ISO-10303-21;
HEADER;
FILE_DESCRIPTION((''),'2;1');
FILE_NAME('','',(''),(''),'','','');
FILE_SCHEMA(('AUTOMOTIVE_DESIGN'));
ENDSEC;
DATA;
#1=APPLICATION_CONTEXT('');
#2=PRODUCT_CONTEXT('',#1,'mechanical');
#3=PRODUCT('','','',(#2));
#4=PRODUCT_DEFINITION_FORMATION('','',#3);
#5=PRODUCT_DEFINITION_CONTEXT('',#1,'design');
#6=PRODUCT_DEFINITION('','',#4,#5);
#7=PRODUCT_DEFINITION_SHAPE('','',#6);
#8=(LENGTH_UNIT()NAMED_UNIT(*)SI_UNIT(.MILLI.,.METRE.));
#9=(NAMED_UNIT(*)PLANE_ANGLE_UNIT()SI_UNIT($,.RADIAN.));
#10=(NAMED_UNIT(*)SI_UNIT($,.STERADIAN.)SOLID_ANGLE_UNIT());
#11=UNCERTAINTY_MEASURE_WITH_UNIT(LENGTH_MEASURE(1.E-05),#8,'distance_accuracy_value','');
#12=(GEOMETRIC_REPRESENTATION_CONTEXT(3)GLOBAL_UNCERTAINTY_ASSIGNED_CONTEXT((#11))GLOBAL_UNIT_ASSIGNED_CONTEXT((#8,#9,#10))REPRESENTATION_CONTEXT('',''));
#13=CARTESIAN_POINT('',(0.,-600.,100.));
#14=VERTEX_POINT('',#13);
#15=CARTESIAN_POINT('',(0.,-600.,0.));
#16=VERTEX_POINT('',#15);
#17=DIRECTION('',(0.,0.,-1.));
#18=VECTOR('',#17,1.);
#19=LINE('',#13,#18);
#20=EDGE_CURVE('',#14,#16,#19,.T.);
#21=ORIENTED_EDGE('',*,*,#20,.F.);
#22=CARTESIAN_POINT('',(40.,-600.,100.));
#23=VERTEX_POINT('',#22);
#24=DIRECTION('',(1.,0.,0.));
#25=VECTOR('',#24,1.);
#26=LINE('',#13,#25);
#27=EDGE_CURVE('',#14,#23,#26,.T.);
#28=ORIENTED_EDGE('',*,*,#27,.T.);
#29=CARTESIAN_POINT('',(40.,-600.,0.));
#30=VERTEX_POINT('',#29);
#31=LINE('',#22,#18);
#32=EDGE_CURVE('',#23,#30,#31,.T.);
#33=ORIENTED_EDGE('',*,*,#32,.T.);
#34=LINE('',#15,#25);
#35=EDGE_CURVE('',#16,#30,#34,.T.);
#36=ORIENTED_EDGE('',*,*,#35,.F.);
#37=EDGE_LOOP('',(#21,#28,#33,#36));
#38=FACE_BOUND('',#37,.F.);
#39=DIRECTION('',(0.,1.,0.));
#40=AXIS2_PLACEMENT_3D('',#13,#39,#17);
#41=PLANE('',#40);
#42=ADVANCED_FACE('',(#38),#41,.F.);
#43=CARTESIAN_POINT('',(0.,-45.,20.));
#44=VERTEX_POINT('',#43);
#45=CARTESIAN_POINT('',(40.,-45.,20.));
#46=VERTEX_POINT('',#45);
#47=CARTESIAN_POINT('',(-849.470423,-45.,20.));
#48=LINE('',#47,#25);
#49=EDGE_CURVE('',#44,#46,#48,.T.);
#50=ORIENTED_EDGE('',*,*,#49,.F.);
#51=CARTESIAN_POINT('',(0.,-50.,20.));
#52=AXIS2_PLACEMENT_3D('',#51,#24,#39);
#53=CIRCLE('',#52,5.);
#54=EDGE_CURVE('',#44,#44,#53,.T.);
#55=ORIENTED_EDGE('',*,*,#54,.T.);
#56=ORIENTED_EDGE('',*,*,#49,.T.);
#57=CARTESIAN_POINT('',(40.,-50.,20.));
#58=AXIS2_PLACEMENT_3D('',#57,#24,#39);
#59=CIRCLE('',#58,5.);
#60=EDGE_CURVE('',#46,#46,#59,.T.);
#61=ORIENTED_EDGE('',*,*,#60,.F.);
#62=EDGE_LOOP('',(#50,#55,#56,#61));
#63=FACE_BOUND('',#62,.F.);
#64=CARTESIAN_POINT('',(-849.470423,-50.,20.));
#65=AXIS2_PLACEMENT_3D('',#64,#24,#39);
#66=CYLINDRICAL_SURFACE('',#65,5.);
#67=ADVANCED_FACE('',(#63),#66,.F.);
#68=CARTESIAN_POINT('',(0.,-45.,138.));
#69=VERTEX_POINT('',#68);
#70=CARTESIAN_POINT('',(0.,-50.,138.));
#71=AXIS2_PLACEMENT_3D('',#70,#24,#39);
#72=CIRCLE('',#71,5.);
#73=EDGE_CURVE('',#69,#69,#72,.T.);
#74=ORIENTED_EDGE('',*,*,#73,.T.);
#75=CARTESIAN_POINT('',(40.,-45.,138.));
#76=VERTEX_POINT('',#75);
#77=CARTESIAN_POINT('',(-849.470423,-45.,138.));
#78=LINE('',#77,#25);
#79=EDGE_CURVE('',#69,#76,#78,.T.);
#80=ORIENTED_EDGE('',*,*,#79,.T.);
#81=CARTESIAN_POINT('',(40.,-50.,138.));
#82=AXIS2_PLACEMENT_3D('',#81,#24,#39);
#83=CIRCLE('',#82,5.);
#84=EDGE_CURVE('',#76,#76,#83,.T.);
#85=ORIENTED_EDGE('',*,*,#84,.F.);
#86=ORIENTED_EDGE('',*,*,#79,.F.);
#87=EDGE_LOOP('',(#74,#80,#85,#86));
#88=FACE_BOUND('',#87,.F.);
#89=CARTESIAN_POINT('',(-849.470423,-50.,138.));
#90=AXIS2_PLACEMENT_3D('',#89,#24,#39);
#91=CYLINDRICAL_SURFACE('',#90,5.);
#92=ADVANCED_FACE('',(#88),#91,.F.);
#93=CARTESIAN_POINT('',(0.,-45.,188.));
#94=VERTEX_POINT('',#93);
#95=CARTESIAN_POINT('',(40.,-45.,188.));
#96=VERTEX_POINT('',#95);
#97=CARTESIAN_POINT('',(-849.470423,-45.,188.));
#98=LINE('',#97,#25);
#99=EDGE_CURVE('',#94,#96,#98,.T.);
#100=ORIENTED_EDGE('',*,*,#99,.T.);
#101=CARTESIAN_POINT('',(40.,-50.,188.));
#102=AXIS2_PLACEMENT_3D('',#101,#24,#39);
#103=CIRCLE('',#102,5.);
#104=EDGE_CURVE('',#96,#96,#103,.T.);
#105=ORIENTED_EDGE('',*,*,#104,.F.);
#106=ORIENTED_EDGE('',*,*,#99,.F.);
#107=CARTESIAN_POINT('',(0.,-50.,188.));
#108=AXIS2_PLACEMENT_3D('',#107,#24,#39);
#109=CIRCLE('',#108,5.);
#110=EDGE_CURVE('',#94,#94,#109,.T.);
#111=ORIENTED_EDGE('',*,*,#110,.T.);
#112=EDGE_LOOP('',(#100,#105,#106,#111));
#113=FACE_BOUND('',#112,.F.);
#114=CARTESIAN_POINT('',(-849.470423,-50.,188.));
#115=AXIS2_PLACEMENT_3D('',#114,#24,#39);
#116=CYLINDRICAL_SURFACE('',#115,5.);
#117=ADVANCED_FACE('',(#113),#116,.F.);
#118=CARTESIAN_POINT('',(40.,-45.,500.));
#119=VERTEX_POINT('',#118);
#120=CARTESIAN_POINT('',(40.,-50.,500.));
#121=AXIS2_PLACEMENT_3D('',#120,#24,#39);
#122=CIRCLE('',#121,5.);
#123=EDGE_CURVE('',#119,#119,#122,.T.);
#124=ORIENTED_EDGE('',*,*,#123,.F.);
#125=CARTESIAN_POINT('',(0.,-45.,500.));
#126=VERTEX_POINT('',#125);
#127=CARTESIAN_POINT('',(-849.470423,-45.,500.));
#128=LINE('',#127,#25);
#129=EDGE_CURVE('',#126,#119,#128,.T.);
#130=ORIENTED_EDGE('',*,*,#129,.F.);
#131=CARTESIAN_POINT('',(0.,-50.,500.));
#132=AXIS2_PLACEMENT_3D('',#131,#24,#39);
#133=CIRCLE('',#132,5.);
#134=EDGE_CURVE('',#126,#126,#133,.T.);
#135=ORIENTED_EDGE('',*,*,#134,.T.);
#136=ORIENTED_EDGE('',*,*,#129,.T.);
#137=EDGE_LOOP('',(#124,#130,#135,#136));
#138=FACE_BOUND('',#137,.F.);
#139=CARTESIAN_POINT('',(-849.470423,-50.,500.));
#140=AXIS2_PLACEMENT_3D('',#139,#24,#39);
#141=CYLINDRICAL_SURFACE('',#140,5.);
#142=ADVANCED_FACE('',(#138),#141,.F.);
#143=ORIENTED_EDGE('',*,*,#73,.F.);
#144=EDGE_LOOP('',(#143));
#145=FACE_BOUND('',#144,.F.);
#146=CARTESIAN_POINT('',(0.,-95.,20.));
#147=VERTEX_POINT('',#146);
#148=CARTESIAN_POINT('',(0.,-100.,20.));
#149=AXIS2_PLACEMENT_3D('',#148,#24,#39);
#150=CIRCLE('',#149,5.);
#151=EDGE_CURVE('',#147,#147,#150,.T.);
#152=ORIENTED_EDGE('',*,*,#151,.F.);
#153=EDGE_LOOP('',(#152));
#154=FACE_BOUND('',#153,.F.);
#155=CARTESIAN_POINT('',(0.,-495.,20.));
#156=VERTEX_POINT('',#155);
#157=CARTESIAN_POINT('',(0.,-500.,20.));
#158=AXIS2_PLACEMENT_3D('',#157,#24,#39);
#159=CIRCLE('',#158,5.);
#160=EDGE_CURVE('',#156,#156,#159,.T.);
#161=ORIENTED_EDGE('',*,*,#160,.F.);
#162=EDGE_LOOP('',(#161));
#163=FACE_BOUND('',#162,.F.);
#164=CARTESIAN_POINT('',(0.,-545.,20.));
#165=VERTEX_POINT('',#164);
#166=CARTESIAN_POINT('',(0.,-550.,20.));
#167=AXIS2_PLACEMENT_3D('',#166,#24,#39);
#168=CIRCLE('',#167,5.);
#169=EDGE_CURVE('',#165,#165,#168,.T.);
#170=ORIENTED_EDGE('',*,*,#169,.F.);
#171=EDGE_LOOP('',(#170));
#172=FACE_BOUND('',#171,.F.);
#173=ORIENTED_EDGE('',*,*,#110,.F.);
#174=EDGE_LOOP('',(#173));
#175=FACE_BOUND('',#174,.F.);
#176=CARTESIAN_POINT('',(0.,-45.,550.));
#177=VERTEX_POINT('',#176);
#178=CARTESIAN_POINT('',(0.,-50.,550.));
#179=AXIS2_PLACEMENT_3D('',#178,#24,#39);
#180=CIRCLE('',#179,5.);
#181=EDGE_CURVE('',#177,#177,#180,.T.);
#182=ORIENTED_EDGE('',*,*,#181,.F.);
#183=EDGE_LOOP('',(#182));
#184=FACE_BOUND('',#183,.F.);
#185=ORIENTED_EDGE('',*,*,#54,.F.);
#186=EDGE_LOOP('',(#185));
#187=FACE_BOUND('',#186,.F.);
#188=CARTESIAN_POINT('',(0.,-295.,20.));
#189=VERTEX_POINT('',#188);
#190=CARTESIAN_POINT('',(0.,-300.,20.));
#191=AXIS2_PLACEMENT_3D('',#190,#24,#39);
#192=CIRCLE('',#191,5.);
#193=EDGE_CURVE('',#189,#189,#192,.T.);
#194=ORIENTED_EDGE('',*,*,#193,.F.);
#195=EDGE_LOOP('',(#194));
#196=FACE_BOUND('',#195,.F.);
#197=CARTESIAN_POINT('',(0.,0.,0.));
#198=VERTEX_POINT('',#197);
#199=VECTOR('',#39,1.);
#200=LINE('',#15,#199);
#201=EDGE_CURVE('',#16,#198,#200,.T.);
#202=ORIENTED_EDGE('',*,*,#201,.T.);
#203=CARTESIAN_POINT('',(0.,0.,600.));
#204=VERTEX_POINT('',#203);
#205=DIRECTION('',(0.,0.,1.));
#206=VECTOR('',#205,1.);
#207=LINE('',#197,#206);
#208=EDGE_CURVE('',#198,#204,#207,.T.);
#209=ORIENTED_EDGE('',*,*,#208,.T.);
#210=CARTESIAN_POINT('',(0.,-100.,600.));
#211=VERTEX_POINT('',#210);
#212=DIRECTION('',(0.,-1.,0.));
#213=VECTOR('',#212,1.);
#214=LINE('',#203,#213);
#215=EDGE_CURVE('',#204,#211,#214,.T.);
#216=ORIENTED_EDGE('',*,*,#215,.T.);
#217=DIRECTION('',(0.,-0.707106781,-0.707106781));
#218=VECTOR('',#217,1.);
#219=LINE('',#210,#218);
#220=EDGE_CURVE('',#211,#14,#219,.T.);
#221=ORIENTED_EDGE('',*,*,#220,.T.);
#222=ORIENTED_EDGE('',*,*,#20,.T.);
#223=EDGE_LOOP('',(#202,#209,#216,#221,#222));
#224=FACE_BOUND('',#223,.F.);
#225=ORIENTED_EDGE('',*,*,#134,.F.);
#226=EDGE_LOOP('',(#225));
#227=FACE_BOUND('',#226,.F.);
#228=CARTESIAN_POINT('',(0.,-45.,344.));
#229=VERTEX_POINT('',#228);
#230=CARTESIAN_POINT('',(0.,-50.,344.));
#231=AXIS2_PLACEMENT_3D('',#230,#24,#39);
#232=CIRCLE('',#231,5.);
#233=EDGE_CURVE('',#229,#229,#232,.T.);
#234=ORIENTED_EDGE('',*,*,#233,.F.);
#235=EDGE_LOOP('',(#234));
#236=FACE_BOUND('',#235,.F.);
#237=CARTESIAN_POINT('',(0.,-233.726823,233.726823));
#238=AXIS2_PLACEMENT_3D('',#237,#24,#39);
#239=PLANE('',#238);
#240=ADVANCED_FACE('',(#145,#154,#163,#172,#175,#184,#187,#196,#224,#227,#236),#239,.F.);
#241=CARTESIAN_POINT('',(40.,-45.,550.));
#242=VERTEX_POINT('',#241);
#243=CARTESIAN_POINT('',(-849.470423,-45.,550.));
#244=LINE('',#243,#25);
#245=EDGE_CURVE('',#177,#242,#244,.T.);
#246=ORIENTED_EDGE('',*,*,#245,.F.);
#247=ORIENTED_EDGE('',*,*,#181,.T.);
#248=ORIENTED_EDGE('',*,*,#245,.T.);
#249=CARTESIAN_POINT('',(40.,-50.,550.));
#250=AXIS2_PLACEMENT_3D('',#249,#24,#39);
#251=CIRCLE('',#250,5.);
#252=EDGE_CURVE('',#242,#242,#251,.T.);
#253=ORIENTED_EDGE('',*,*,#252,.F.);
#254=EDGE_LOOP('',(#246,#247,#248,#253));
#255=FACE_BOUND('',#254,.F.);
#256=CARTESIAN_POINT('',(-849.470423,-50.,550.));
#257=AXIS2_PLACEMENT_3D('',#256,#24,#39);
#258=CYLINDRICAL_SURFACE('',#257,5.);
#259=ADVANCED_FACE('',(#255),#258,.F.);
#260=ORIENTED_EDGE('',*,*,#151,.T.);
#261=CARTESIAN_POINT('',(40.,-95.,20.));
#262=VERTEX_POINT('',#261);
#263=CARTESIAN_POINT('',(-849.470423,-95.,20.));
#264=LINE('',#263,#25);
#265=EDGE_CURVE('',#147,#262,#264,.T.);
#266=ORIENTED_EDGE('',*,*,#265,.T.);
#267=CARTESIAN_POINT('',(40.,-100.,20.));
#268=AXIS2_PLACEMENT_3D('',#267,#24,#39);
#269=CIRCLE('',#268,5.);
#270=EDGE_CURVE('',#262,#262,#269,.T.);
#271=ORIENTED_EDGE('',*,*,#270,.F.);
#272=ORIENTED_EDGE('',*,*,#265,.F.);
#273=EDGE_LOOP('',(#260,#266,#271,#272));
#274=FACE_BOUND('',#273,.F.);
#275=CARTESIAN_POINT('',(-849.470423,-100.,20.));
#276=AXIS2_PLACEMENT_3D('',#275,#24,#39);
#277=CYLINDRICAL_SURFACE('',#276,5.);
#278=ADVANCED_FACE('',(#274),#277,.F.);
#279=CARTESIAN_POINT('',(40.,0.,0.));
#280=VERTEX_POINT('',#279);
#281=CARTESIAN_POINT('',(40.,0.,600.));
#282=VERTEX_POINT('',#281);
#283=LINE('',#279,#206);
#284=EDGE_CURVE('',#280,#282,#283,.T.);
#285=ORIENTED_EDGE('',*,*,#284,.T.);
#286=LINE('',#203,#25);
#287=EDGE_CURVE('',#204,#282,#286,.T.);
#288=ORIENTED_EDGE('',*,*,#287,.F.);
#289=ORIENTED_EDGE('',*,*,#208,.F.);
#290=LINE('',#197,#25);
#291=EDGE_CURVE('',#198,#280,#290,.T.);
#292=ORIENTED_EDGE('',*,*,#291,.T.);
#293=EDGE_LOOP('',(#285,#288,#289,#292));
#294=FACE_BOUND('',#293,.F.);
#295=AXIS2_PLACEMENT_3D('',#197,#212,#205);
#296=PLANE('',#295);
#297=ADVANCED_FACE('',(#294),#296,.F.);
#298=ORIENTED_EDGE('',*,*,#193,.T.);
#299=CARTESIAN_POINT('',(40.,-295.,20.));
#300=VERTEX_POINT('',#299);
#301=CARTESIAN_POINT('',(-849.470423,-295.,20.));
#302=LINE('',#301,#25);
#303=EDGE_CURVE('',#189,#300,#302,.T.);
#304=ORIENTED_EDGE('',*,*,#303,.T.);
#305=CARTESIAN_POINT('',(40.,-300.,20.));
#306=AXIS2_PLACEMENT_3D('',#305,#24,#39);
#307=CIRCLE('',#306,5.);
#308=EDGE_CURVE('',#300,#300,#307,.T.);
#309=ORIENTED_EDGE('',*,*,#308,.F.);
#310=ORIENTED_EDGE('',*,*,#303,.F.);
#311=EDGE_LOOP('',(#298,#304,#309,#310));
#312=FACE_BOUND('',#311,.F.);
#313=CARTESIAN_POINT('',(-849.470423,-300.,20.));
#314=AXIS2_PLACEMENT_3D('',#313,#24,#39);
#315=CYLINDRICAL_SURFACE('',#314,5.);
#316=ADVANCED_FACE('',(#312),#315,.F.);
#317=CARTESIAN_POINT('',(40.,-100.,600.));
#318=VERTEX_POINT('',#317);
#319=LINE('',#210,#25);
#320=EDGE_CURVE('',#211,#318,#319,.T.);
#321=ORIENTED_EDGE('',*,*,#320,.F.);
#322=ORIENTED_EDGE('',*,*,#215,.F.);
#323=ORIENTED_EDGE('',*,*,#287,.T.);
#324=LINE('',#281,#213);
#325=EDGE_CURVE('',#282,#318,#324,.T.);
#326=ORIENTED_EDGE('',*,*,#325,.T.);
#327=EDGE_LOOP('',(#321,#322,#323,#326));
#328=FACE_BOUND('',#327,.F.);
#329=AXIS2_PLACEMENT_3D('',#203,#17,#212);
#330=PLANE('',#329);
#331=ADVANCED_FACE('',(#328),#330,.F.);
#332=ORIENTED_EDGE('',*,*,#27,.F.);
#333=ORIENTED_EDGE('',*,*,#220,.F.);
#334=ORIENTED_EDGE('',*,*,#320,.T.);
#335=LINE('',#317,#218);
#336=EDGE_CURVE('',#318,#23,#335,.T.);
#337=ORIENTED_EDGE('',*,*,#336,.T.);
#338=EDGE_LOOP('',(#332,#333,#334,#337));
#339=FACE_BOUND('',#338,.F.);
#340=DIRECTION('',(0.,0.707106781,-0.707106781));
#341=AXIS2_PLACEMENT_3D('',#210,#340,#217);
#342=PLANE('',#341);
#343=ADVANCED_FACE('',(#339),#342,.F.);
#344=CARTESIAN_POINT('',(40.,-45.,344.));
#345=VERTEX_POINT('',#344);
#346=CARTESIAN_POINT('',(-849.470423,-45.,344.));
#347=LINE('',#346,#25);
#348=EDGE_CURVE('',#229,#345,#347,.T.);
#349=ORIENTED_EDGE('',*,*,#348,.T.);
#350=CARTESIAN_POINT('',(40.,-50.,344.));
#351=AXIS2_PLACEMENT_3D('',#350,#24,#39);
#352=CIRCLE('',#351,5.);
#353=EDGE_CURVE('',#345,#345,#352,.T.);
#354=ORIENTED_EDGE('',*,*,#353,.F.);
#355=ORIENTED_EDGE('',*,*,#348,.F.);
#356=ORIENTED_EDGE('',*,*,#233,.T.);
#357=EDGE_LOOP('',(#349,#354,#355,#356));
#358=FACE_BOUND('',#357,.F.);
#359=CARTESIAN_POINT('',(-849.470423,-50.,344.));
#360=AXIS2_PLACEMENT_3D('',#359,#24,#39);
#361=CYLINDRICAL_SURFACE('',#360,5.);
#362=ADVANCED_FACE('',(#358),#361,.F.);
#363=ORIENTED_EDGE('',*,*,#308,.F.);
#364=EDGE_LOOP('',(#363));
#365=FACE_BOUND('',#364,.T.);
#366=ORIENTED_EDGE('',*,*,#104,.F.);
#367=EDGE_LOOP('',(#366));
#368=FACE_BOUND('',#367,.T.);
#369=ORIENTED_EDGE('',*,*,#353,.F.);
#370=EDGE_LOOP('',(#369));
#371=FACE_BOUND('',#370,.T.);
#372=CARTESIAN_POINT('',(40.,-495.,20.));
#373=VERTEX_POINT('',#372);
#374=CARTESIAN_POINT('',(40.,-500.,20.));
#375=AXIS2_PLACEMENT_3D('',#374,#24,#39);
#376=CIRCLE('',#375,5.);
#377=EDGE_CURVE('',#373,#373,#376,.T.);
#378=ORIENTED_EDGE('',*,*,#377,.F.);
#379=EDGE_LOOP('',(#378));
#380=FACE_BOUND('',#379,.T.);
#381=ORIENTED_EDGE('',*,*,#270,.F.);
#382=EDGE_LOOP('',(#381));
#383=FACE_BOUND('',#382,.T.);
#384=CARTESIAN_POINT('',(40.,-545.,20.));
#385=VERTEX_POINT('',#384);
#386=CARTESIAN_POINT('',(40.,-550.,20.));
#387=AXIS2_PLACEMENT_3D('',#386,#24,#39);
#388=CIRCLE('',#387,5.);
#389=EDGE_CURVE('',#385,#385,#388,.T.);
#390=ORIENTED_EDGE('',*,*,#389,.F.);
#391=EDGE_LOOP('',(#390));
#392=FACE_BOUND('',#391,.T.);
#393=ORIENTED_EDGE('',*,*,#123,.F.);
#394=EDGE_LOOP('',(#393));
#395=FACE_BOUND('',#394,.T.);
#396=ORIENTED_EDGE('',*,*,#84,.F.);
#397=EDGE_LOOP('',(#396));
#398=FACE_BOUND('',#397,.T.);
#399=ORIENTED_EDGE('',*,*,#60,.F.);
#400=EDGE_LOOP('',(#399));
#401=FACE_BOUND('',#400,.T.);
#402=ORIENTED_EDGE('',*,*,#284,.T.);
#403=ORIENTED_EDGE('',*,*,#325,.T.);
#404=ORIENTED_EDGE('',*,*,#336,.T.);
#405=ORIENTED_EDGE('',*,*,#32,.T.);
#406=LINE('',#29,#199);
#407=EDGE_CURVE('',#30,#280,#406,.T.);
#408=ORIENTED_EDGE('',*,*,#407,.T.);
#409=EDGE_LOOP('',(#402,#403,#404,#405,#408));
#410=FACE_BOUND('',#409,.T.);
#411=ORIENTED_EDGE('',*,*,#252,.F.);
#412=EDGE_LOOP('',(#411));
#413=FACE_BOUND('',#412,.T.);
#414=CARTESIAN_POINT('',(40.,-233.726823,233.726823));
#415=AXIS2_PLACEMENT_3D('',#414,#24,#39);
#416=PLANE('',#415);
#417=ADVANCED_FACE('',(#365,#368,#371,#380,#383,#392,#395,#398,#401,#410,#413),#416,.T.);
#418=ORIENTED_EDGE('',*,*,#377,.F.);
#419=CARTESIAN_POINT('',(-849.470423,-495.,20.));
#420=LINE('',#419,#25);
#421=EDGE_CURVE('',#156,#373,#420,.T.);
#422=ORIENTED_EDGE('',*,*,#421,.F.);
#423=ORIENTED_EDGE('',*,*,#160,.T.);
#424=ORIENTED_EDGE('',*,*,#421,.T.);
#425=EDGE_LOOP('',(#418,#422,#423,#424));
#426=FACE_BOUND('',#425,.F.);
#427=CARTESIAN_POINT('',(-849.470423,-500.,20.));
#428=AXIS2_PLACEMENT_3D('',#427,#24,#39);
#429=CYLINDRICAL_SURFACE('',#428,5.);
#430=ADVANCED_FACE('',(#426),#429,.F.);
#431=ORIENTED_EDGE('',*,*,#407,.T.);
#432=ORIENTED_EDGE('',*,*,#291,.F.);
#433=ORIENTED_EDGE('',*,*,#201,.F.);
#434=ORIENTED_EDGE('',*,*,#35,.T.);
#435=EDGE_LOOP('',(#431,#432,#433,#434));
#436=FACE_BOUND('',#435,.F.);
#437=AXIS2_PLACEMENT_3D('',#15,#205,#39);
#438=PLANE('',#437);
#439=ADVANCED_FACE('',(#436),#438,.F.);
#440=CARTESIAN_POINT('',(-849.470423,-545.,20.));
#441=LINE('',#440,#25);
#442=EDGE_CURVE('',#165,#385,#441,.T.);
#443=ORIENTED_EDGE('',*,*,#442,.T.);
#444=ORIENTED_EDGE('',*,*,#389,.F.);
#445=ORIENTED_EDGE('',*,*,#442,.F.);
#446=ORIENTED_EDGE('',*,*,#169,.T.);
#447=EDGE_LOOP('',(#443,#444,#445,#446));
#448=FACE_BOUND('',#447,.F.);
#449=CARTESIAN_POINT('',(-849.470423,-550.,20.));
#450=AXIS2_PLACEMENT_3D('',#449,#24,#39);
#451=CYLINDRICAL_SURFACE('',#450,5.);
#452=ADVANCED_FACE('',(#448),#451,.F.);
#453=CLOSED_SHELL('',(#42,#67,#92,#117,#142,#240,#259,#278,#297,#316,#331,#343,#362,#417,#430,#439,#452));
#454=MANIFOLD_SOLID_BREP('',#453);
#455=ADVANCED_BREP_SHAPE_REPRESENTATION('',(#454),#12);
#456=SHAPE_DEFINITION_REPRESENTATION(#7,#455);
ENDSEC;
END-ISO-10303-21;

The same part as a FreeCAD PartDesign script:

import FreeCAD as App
import Part
import Sketcher
Q = App.Units.Quantity

doc = App.newDocument("Part")
body = doc.addObject("PartDesign::Body", "Body")

# Sketch on YZ plane
sketch1 = body.newObject("Sketcher::SketchObject", "Sketch")
sketch1.AttachmentSupport = (doc.getObject("YZ_Plane"), [""])
sketch1.MapMode = "FlatFace"
sketch1.addGeometry([
    Part.LineSegment(App.Vector(-600, 0, 0), App.Vector(0, 0, 0)),  # 0
    Part.LineSegment(App.Vector(0, 0, 0), App.Vector(0, 600, 0)),  # 1
    Part.LineSegment(App.Vector(0, 600, 0), App.Vector(-100, 600, 0)),  # 2
    Part.LineSegment(App.Vector(-100, 600, 0), App.Vector(-600, 100, 0)),  # 3
    Part.LineSegment(App.Vector(-600, 100, 0), App.Vector(-600, 0, 0)),  # 4
], False)
sketch1.addConstraint([
    Sketcher.Constraint("Coincident", 0, 2, 1, 1),
    Sketcher.Constraint("Coincident", 1, 2, 2, 1),
    Sketcher.Constraint("Coincident", 2, 2, 3, 1),
    Sketcher.Constraint("Coincident", 3, 2, 4, 1),
    Sketcher.Constraint("Coincident", 4, 2, 0, 1),
    Sketcher.Constraint("Horizontal", 0),
    Sketcher.Constraint("Vertical", 1),
    Sketcher.Constraint("Horizontal", 2),
    Sketcher.Constraint("Vertical", 4),
    Sketcher.Constraint("Coincident", 0, 2, -1, 1),
    Sketcher.Constraint("Equal", 0, 1),
    Sketcher.Constraint("Equal", 2, 4),
    Sketcher.Constraint("DistanceX", 0, 1, 0, 2, Q("600 mm")),
    Sketcher.Constraint("DistanceX", 2, 2, 2, 1, Q("100 mm")),
])
pad1 = body.newObject("PartDesign::Pad", "Pad")
pad1.Profile = sketch1
pad1.Length = 40

# Sketch on YZ plane
sketch2 = body.newObject("Sketcher::SketchObject", "Sketch001")
sketch2.AttachmentSupport = (doc.getObject("YZ_Plane"), [""])
sketch2.MapMode = "FlatFace"
sketch2.addGeometry([
    Part.Circle(App.Vector(-50, 20, 0), App.Vector(0, 0, 1), 5),  # 0
    Part.Circle(App.Vector(-100, 20, 0), App.Vector(0, 0, 1), 5),  # 1
    Part.Circle(App.Vector(-300, 20, 0), App.Vector(0, 0, 1), 5),  # 2
    Part.Circle(App.Vector(-500, 20, 0), App.Vector(0, 0, 1), 5),  # 3
    Part.Circle(App.Vector(-550, 20, 0), App.Vector(0, 0, 1), 5),  # 4
    Part.Circle(App.Vector(-50, 138, 0), App.Vector(0, 0, 1), 5),  # 5
    Part.Circle(App.Vector(-50, 188, 0), App.Vector(0, 0, 1), 5),  # 6
    Part.Circle(App.Vector(-50, 344, 0), App.Vector(0, 0, 1), 5),  # 7
    Part.Circle(App.Vector(-50, 500, 0), App.Vector(0, 0, 1), 5),  # 8
    Part.Circle(App.Vector(-50, 550, 0), App.Vector(0, 0, 1), 5),  # 9
], False)
sketch2.addConstraint([
    Sketcher.Constraint("Equal", 0, 1),
    Sketcher.Constraint("Equal", 1, 2),
    Sketcher.Constraint("Equal", 2, 3),
    Sketcher.Constraint("Equal", 3, 4),
    Sketcher.Constraint("Equal", 4, 5),
    Sketcher.Constraint("Equal", 5, 6),
    Sketcher.Constraint("Equal", 6, 7),
    Sketcher.Constraint("Equal", 7, 8),
    Sketcher.Constraint("Equal", 8, 9),
    Sketcher.Constraint("Horizontal", 0, 3, 1, 3),
    Sketcher.Constraint("Horizontal", 1, 3, 2, 3),
    Sketcher.Constraint("Horizontal", 2, 3, 3, 3),
    Sketcher.Constraint("Horizontal", 3, 3, 4, 3),
    Sketcher.Constraint("Vertical", 0, 3, 5, 3),
    Sketcher.Constraint("Vertical", 5, 3, 6, 3),
    Sketcher.Constraint("Vertical", 6, 3, 7, 3),
    Sketcher.Constraint("Vertical", 7, 3, 8, 3),
    Sketcher.Constraint("Vertical", 8, 3, 9, 3),
    Sketcher.Constraint("Diameter", 0, Q("10 mm")),
    Sketcher.Constraint("DistanceX", 0, 3, -1, 1, Q("50 mm")),
    Sketcher.Constraint("DistanceY", -1, 1, 0, 3, Q("20 mm")),
    Sketcher.Constraint("DistanceX", 1, 3, -1, 1, Q("100 mm")),
    Sketcher.Constraint("DistanceX", 2, 3, -1, 1, Q("300 mm")),
    Sketcher.Constraint("DistanceX", 3, 3, -1, 1, Q("500 mm")),
    Sketcher.Constraint("DistanceX", 4, 3, -1, 1, Q("550 mm")),
    Sketcher.Constraint("DistanceY", -1, 1, 5, 3, Q("138 mm")),
    Sketcher.Constraint("DistanceY", -1, 1, 6, 3, Q("188 mm")),
    Sketcher.Constraint("DistanceY", -1, 1, 7, 3, Q("344 mm")),
    Sketcher.Constraint("DistanceY", -1, 1, 8, 3, Q("500 mm")),
    Sketcher.Constraint("DistanceY", -1, 1, 9, 3, Q("550 mm")),
])
doc.recompute()
hole = body.newObject("PartDesign::Hole", "Hole")
hole.Profile = sketch2
hole.ThreadType = "None"
hole.Diameter = 10
hole.DepthType = "ThroughAll"
hole.Reversed = True

doc.recompute()
